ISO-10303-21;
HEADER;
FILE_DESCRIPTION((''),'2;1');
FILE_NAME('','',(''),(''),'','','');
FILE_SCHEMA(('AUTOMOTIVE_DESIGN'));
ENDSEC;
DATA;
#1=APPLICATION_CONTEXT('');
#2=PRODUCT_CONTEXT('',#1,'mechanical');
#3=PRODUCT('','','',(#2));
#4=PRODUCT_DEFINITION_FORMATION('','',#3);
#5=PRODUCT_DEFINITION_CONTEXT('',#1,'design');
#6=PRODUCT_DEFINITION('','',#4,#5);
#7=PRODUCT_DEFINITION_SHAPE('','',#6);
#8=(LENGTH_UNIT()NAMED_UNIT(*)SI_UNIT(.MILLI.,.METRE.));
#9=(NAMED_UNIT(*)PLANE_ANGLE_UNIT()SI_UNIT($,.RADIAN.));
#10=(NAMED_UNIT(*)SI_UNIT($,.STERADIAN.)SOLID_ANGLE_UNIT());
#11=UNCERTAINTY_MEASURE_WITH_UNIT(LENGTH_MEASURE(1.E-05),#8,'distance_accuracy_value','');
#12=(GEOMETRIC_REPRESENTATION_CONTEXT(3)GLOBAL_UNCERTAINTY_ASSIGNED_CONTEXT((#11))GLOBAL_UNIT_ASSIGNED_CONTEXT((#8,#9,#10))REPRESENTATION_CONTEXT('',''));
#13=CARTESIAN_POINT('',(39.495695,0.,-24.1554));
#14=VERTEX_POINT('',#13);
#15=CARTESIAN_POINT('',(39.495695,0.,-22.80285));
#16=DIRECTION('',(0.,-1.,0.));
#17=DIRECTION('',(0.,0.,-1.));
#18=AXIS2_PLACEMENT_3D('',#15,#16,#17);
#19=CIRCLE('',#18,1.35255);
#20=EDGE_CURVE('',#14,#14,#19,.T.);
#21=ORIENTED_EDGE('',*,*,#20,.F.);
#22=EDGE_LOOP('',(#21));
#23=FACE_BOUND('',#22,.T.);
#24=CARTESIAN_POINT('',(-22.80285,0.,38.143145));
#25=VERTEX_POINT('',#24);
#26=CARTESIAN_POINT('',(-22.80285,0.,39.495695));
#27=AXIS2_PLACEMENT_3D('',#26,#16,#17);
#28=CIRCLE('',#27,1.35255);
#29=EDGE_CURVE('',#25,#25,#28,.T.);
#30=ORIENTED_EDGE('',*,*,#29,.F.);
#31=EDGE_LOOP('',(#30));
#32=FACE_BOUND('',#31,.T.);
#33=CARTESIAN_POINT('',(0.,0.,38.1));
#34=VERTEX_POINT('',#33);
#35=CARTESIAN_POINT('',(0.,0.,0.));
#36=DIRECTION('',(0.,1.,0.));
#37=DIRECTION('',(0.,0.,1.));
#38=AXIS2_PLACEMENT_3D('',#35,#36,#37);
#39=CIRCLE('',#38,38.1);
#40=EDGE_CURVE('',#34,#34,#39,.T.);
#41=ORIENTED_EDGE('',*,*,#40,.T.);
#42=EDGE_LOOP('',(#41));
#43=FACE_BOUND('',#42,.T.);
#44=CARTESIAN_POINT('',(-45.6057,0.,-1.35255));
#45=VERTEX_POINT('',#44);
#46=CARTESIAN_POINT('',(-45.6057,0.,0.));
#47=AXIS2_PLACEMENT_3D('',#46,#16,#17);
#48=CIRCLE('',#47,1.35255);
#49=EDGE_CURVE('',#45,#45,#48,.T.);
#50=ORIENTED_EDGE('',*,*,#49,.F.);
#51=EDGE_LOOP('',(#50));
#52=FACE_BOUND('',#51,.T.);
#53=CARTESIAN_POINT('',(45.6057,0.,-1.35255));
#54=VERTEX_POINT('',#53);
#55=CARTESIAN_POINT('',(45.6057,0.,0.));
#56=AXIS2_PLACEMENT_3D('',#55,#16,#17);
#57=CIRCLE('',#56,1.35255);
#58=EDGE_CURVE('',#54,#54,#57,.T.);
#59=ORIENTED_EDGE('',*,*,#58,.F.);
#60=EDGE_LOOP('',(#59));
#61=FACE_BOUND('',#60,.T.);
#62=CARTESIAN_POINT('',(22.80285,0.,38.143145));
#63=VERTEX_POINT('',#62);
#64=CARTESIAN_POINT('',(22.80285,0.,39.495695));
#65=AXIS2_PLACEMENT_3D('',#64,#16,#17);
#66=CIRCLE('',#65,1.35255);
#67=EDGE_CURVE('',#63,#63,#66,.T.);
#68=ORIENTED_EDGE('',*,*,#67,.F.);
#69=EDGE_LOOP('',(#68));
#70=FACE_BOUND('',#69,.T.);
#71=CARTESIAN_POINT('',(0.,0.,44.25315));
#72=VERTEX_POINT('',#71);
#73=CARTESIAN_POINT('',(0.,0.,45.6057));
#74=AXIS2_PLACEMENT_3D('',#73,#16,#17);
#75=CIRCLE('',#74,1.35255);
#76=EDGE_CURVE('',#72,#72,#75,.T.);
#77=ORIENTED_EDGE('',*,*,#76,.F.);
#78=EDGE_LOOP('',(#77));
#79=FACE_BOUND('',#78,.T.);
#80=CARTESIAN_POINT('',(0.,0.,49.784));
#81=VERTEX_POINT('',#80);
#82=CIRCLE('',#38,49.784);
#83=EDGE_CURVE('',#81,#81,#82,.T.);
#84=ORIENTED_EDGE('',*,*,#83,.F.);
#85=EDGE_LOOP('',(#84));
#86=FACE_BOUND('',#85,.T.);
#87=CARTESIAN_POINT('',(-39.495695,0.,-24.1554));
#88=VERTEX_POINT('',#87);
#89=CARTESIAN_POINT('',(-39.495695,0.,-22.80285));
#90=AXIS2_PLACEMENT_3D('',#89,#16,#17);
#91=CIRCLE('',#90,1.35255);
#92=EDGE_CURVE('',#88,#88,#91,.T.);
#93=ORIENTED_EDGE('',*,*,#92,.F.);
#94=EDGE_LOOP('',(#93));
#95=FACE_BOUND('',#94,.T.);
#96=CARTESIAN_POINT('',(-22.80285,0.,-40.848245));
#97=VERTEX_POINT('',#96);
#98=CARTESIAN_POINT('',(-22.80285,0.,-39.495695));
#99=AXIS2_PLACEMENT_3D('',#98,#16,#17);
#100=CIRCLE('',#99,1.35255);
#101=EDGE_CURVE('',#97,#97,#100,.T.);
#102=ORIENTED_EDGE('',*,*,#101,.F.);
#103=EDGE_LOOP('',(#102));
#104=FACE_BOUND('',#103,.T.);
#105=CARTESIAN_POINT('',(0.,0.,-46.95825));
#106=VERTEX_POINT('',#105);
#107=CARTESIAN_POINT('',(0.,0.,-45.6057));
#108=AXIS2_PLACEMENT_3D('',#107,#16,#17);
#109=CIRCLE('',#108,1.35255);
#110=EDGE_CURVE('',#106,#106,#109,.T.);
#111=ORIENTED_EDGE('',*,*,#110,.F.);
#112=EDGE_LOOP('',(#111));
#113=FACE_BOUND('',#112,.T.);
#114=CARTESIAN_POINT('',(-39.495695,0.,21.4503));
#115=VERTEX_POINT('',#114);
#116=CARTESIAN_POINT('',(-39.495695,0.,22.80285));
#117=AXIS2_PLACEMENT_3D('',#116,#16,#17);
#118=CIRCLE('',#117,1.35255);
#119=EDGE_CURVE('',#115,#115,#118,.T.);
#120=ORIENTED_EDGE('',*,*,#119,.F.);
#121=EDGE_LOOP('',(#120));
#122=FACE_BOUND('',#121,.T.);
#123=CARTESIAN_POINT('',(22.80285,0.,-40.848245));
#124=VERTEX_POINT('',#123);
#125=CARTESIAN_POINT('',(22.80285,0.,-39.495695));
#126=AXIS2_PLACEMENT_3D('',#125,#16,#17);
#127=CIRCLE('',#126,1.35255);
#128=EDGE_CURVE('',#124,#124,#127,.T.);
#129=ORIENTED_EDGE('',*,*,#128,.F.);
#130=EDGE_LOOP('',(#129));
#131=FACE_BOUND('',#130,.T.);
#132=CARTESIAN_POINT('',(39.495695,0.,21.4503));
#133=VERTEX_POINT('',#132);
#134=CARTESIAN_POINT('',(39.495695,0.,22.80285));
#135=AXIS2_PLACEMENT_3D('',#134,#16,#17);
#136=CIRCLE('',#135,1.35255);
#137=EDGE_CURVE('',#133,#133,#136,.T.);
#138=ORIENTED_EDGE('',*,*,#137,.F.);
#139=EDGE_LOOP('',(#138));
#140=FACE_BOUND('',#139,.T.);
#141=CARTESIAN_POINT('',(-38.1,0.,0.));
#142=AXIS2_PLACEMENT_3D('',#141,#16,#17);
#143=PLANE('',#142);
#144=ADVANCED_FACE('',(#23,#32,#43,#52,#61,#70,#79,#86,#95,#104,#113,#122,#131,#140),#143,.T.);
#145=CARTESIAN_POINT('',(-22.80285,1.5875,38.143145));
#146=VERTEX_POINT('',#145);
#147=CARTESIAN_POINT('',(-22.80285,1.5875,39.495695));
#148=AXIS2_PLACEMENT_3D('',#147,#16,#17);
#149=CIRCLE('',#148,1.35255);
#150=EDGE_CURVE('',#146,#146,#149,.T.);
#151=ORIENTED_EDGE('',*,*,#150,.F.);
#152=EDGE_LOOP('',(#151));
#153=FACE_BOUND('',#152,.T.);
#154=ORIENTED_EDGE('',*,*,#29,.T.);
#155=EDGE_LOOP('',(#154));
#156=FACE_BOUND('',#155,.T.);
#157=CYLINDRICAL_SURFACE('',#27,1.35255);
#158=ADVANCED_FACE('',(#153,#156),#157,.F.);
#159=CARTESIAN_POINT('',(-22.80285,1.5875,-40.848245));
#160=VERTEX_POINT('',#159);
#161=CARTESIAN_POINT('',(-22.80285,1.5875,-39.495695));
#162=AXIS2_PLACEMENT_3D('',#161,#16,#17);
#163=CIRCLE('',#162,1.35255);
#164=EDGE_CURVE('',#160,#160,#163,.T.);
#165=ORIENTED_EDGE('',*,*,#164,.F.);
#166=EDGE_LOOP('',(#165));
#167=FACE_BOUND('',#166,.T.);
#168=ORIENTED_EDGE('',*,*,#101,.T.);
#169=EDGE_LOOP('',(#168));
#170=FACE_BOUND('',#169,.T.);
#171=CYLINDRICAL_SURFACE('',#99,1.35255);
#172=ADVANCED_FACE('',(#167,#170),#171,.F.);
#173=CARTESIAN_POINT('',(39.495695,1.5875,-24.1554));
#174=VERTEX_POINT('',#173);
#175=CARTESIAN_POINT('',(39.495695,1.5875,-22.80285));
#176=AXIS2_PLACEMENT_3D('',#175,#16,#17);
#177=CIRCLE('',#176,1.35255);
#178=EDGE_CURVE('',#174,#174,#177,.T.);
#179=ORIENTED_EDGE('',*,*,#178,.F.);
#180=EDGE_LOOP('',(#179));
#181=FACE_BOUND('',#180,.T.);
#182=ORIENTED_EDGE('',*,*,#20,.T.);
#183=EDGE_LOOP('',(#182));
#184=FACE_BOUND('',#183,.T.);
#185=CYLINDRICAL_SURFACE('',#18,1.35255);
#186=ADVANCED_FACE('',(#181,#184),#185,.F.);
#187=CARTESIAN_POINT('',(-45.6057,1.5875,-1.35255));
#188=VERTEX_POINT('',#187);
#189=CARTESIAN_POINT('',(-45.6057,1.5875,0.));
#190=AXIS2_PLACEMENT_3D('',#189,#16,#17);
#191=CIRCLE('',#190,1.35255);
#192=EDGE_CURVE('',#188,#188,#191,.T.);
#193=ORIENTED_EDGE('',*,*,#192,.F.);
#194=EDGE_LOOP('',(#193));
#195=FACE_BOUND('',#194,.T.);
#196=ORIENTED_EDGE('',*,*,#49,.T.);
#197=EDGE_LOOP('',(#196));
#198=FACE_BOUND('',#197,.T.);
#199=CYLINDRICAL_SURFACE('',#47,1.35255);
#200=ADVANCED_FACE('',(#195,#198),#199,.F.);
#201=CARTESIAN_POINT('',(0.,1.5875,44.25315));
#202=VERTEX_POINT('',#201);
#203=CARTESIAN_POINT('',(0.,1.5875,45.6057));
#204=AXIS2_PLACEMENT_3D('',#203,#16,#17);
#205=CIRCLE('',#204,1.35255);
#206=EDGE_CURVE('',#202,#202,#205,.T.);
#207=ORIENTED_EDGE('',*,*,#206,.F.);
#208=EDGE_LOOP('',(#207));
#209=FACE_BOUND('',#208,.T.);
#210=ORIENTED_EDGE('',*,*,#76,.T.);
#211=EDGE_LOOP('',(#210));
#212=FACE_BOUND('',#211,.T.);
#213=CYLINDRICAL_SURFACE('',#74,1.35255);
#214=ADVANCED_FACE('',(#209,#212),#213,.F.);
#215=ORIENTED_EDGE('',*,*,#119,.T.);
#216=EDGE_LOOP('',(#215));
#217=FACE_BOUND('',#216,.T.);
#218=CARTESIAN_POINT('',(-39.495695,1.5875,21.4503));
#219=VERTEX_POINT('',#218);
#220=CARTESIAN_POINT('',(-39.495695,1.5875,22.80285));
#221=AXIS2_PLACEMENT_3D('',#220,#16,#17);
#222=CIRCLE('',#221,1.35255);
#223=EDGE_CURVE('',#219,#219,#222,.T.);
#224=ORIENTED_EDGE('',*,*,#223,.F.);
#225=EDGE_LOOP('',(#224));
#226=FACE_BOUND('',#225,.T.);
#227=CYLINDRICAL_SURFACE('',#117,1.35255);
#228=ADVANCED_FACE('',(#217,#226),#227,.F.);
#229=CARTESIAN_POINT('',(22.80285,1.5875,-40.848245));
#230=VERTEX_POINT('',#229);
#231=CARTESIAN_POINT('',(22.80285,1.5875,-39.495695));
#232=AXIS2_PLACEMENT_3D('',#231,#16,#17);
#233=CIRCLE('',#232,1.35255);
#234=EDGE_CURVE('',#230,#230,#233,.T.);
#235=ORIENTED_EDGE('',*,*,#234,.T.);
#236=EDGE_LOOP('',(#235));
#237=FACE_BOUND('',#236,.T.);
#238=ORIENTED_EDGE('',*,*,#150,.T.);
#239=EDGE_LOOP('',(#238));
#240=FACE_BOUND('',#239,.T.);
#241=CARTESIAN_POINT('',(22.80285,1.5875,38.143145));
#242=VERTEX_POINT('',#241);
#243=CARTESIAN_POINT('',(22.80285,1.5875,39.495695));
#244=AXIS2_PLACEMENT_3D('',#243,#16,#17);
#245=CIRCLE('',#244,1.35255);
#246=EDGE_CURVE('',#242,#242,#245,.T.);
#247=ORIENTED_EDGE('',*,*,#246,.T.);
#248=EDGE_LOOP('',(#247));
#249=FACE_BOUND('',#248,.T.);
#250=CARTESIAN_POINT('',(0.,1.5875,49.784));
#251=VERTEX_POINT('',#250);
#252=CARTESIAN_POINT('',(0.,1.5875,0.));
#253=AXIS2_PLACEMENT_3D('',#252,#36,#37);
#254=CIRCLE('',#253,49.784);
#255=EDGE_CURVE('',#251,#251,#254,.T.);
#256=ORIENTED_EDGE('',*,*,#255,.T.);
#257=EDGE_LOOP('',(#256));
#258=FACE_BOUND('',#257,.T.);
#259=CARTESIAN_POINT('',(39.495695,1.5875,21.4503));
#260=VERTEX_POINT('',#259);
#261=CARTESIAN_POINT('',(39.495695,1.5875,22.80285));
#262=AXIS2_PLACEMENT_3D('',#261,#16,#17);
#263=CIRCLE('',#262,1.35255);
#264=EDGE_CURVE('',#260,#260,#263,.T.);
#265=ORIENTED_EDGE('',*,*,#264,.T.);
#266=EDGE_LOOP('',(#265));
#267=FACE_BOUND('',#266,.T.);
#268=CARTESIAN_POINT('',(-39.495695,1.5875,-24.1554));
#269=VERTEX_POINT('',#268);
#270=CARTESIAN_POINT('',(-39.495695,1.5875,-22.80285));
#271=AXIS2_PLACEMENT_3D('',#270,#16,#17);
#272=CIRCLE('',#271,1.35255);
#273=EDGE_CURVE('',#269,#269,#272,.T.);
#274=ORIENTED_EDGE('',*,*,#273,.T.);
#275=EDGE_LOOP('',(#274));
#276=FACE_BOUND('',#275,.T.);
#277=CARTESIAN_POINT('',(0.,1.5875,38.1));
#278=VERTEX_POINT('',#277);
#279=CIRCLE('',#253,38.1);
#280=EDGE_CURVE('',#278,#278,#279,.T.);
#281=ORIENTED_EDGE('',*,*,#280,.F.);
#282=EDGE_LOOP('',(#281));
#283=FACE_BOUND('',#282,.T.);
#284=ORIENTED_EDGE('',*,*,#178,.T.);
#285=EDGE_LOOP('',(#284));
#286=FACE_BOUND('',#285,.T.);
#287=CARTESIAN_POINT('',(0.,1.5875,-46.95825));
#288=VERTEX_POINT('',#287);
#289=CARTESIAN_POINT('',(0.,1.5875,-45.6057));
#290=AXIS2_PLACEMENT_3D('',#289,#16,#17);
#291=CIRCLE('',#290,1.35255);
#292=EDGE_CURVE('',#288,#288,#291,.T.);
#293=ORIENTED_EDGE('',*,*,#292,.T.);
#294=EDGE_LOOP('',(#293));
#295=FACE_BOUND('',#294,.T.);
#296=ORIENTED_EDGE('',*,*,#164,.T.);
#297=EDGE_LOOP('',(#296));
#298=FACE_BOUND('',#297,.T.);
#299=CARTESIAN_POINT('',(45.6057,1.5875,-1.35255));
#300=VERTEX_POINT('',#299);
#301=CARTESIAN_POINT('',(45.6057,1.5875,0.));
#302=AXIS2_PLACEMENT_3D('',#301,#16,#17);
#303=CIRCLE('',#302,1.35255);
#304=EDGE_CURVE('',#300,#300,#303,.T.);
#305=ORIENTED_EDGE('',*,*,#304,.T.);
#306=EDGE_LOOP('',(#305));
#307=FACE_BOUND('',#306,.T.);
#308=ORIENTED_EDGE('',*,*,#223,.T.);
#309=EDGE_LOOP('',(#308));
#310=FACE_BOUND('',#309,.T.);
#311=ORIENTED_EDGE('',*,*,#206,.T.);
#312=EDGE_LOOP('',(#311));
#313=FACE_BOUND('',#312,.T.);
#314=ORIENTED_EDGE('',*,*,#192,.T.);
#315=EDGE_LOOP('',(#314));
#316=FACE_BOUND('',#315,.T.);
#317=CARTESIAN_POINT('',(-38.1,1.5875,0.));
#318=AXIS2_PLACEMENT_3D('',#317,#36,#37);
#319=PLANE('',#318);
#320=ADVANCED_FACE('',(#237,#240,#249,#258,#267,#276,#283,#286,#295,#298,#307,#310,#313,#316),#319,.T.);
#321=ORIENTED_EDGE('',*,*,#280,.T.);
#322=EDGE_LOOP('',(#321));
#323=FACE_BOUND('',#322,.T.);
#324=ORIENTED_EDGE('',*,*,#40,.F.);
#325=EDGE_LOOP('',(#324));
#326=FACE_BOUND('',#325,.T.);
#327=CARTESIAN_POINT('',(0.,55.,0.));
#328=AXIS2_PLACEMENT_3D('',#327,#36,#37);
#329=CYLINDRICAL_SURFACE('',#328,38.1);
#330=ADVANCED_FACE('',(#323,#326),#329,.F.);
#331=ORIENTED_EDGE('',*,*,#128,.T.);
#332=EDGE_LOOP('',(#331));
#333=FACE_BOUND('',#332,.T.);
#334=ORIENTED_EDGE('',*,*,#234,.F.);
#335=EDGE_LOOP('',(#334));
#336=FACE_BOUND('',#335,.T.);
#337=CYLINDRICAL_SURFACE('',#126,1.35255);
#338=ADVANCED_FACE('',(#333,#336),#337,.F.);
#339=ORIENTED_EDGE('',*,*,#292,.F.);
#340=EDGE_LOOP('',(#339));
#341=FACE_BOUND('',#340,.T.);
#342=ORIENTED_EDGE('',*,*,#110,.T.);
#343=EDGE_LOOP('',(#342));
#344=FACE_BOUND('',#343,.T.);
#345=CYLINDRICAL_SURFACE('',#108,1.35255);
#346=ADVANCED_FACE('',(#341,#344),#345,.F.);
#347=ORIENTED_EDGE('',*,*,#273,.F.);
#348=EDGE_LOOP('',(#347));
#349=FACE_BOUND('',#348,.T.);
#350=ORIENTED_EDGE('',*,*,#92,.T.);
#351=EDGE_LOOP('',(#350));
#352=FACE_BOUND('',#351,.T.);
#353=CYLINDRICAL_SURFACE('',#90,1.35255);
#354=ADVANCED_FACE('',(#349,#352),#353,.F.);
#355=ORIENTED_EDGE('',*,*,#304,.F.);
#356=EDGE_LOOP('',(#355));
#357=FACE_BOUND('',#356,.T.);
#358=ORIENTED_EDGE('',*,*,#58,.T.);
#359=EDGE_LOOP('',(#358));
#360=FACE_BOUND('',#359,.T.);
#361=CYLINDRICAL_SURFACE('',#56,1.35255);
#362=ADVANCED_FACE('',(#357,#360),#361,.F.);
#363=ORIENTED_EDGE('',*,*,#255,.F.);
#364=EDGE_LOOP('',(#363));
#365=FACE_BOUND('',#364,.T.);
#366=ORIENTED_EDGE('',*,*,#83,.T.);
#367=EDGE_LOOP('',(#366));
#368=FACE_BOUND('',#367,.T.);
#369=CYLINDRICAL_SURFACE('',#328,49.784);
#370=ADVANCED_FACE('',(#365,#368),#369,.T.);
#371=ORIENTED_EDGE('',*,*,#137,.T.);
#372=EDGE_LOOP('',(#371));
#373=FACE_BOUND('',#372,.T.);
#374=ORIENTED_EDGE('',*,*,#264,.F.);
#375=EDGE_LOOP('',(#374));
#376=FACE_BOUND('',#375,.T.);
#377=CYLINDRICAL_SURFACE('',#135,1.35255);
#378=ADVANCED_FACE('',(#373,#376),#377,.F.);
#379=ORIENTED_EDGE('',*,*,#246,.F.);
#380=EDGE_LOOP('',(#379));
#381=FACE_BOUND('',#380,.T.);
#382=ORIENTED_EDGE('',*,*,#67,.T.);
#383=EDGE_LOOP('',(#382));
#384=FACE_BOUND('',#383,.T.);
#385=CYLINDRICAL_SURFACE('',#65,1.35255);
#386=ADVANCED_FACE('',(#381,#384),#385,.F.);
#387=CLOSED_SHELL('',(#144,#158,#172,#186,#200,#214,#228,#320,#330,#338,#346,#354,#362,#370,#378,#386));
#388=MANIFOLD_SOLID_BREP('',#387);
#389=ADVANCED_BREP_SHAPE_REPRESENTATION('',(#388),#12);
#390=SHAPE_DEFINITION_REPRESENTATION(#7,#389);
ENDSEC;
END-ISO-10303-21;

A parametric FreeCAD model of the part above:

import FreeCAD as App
import Part
import Sketcher
from FreeCAD import Vector
Q = App.Units.Quantity


def add_polygon(sketch, points):
    """Adds a closed chain of lines whose ends are joined by coincident constraints."""
    first, n = sketch.GeometryCount, len(points)
    for a, b in zip(points, points[1:] + points[:1]):
        sketch.addGeometry(Part.LineSegment(App.Vector(*a, 0), App.Vector(*b, 0)), False)
    for i in range(n):
        sketch.addConstraint(Sketcher.Constraint("Coincident", first + i, 2, first + (i + 1) % n, 1))

doc = App.newDocument("Part")
body = doc.addObject("PartDesign::Body", "Body")

sketch1 = body.newObject("Sketcher::SketchObject", "Sketch")
sketch1.AttachmentSupport = (doc.getObject("XY_Plane"), [""])
sketch1.MapMode = "FlatFace"
add_polygon(sketch1, [(-49.8, 1.6), (-49.8, 0), (-38.1, 0), (-38.1, 1.6)])
sketch1.addConstraint([
    Sketcher.Constraint("Vertical", 0),
    Sketcher.Constraint("Horizontal", 1),
    Sketcher.Constraint("Vertical", 2),
    Sketcher.Constraint("Horizontal", 3),
    Sketcher.Constraint("PointOnObject", 0, 2, -1),
    Sketcher.Constraint("DistanceX", 1, 1, 1, 2, Q("0.46 in")),
    Sketcher.Constraint("DistanceX", 1, 2, -1, 1, Q("1.5 in")),
    Sketcher.Constraint("DistanceY", 0, 2, 0, 1, Q("0.0625 in")),
])
revolution = body.newObject("PartDesign::Revolution", "Revolution")
revolution.Profile = sketch1
revolution.ReferenceAxis = (sketch1, ["V_Axis"])
revolution.Angle = 360

sketch2 = body.newObject("Sketcher::SketchObject", "Sketch001")
sketch2.AttachmentSupport = (doc.getObject("XZ_Plane"), [""])
sketch2.MapMode = "FlatFace"
sketch2.addGeometry(Part.Circle(Vector(-45.6, 0, 0), Vector(0, 0, 1), 1.4), False)
sketch2.addConstraint([
    Sketcher.Constraint("PointOnObject", 0, 3, -1),
    Sketcher.Constraint("Diameter", 0, Q("0.1065 in")),
    Sketcher.Constraint("DistanceX", 0, 3, -1, 1, Q("1.7955 in")),
])
doc.recompute()
hole = body.newObject("PartDesign::Hole", "Hole")
hole.Profile = sketch2
hole.ThreadType = "None"
hole.Diameter = Q("0.1065 in")
hole.DepthType = "ThroughAll"
doc.recompute()

polarpattern = body.newObject("PartDesign::PolarPattern", "PolarPattern")
polarpattern.Originals = [hole]
polarpattern.Axis = (doc.getObject("Y_Axis"), [""])
polarpattern.Angle = 360
polarpattern.Occurrences = 12
body.Tip = polarpattern

doc.recompute()
